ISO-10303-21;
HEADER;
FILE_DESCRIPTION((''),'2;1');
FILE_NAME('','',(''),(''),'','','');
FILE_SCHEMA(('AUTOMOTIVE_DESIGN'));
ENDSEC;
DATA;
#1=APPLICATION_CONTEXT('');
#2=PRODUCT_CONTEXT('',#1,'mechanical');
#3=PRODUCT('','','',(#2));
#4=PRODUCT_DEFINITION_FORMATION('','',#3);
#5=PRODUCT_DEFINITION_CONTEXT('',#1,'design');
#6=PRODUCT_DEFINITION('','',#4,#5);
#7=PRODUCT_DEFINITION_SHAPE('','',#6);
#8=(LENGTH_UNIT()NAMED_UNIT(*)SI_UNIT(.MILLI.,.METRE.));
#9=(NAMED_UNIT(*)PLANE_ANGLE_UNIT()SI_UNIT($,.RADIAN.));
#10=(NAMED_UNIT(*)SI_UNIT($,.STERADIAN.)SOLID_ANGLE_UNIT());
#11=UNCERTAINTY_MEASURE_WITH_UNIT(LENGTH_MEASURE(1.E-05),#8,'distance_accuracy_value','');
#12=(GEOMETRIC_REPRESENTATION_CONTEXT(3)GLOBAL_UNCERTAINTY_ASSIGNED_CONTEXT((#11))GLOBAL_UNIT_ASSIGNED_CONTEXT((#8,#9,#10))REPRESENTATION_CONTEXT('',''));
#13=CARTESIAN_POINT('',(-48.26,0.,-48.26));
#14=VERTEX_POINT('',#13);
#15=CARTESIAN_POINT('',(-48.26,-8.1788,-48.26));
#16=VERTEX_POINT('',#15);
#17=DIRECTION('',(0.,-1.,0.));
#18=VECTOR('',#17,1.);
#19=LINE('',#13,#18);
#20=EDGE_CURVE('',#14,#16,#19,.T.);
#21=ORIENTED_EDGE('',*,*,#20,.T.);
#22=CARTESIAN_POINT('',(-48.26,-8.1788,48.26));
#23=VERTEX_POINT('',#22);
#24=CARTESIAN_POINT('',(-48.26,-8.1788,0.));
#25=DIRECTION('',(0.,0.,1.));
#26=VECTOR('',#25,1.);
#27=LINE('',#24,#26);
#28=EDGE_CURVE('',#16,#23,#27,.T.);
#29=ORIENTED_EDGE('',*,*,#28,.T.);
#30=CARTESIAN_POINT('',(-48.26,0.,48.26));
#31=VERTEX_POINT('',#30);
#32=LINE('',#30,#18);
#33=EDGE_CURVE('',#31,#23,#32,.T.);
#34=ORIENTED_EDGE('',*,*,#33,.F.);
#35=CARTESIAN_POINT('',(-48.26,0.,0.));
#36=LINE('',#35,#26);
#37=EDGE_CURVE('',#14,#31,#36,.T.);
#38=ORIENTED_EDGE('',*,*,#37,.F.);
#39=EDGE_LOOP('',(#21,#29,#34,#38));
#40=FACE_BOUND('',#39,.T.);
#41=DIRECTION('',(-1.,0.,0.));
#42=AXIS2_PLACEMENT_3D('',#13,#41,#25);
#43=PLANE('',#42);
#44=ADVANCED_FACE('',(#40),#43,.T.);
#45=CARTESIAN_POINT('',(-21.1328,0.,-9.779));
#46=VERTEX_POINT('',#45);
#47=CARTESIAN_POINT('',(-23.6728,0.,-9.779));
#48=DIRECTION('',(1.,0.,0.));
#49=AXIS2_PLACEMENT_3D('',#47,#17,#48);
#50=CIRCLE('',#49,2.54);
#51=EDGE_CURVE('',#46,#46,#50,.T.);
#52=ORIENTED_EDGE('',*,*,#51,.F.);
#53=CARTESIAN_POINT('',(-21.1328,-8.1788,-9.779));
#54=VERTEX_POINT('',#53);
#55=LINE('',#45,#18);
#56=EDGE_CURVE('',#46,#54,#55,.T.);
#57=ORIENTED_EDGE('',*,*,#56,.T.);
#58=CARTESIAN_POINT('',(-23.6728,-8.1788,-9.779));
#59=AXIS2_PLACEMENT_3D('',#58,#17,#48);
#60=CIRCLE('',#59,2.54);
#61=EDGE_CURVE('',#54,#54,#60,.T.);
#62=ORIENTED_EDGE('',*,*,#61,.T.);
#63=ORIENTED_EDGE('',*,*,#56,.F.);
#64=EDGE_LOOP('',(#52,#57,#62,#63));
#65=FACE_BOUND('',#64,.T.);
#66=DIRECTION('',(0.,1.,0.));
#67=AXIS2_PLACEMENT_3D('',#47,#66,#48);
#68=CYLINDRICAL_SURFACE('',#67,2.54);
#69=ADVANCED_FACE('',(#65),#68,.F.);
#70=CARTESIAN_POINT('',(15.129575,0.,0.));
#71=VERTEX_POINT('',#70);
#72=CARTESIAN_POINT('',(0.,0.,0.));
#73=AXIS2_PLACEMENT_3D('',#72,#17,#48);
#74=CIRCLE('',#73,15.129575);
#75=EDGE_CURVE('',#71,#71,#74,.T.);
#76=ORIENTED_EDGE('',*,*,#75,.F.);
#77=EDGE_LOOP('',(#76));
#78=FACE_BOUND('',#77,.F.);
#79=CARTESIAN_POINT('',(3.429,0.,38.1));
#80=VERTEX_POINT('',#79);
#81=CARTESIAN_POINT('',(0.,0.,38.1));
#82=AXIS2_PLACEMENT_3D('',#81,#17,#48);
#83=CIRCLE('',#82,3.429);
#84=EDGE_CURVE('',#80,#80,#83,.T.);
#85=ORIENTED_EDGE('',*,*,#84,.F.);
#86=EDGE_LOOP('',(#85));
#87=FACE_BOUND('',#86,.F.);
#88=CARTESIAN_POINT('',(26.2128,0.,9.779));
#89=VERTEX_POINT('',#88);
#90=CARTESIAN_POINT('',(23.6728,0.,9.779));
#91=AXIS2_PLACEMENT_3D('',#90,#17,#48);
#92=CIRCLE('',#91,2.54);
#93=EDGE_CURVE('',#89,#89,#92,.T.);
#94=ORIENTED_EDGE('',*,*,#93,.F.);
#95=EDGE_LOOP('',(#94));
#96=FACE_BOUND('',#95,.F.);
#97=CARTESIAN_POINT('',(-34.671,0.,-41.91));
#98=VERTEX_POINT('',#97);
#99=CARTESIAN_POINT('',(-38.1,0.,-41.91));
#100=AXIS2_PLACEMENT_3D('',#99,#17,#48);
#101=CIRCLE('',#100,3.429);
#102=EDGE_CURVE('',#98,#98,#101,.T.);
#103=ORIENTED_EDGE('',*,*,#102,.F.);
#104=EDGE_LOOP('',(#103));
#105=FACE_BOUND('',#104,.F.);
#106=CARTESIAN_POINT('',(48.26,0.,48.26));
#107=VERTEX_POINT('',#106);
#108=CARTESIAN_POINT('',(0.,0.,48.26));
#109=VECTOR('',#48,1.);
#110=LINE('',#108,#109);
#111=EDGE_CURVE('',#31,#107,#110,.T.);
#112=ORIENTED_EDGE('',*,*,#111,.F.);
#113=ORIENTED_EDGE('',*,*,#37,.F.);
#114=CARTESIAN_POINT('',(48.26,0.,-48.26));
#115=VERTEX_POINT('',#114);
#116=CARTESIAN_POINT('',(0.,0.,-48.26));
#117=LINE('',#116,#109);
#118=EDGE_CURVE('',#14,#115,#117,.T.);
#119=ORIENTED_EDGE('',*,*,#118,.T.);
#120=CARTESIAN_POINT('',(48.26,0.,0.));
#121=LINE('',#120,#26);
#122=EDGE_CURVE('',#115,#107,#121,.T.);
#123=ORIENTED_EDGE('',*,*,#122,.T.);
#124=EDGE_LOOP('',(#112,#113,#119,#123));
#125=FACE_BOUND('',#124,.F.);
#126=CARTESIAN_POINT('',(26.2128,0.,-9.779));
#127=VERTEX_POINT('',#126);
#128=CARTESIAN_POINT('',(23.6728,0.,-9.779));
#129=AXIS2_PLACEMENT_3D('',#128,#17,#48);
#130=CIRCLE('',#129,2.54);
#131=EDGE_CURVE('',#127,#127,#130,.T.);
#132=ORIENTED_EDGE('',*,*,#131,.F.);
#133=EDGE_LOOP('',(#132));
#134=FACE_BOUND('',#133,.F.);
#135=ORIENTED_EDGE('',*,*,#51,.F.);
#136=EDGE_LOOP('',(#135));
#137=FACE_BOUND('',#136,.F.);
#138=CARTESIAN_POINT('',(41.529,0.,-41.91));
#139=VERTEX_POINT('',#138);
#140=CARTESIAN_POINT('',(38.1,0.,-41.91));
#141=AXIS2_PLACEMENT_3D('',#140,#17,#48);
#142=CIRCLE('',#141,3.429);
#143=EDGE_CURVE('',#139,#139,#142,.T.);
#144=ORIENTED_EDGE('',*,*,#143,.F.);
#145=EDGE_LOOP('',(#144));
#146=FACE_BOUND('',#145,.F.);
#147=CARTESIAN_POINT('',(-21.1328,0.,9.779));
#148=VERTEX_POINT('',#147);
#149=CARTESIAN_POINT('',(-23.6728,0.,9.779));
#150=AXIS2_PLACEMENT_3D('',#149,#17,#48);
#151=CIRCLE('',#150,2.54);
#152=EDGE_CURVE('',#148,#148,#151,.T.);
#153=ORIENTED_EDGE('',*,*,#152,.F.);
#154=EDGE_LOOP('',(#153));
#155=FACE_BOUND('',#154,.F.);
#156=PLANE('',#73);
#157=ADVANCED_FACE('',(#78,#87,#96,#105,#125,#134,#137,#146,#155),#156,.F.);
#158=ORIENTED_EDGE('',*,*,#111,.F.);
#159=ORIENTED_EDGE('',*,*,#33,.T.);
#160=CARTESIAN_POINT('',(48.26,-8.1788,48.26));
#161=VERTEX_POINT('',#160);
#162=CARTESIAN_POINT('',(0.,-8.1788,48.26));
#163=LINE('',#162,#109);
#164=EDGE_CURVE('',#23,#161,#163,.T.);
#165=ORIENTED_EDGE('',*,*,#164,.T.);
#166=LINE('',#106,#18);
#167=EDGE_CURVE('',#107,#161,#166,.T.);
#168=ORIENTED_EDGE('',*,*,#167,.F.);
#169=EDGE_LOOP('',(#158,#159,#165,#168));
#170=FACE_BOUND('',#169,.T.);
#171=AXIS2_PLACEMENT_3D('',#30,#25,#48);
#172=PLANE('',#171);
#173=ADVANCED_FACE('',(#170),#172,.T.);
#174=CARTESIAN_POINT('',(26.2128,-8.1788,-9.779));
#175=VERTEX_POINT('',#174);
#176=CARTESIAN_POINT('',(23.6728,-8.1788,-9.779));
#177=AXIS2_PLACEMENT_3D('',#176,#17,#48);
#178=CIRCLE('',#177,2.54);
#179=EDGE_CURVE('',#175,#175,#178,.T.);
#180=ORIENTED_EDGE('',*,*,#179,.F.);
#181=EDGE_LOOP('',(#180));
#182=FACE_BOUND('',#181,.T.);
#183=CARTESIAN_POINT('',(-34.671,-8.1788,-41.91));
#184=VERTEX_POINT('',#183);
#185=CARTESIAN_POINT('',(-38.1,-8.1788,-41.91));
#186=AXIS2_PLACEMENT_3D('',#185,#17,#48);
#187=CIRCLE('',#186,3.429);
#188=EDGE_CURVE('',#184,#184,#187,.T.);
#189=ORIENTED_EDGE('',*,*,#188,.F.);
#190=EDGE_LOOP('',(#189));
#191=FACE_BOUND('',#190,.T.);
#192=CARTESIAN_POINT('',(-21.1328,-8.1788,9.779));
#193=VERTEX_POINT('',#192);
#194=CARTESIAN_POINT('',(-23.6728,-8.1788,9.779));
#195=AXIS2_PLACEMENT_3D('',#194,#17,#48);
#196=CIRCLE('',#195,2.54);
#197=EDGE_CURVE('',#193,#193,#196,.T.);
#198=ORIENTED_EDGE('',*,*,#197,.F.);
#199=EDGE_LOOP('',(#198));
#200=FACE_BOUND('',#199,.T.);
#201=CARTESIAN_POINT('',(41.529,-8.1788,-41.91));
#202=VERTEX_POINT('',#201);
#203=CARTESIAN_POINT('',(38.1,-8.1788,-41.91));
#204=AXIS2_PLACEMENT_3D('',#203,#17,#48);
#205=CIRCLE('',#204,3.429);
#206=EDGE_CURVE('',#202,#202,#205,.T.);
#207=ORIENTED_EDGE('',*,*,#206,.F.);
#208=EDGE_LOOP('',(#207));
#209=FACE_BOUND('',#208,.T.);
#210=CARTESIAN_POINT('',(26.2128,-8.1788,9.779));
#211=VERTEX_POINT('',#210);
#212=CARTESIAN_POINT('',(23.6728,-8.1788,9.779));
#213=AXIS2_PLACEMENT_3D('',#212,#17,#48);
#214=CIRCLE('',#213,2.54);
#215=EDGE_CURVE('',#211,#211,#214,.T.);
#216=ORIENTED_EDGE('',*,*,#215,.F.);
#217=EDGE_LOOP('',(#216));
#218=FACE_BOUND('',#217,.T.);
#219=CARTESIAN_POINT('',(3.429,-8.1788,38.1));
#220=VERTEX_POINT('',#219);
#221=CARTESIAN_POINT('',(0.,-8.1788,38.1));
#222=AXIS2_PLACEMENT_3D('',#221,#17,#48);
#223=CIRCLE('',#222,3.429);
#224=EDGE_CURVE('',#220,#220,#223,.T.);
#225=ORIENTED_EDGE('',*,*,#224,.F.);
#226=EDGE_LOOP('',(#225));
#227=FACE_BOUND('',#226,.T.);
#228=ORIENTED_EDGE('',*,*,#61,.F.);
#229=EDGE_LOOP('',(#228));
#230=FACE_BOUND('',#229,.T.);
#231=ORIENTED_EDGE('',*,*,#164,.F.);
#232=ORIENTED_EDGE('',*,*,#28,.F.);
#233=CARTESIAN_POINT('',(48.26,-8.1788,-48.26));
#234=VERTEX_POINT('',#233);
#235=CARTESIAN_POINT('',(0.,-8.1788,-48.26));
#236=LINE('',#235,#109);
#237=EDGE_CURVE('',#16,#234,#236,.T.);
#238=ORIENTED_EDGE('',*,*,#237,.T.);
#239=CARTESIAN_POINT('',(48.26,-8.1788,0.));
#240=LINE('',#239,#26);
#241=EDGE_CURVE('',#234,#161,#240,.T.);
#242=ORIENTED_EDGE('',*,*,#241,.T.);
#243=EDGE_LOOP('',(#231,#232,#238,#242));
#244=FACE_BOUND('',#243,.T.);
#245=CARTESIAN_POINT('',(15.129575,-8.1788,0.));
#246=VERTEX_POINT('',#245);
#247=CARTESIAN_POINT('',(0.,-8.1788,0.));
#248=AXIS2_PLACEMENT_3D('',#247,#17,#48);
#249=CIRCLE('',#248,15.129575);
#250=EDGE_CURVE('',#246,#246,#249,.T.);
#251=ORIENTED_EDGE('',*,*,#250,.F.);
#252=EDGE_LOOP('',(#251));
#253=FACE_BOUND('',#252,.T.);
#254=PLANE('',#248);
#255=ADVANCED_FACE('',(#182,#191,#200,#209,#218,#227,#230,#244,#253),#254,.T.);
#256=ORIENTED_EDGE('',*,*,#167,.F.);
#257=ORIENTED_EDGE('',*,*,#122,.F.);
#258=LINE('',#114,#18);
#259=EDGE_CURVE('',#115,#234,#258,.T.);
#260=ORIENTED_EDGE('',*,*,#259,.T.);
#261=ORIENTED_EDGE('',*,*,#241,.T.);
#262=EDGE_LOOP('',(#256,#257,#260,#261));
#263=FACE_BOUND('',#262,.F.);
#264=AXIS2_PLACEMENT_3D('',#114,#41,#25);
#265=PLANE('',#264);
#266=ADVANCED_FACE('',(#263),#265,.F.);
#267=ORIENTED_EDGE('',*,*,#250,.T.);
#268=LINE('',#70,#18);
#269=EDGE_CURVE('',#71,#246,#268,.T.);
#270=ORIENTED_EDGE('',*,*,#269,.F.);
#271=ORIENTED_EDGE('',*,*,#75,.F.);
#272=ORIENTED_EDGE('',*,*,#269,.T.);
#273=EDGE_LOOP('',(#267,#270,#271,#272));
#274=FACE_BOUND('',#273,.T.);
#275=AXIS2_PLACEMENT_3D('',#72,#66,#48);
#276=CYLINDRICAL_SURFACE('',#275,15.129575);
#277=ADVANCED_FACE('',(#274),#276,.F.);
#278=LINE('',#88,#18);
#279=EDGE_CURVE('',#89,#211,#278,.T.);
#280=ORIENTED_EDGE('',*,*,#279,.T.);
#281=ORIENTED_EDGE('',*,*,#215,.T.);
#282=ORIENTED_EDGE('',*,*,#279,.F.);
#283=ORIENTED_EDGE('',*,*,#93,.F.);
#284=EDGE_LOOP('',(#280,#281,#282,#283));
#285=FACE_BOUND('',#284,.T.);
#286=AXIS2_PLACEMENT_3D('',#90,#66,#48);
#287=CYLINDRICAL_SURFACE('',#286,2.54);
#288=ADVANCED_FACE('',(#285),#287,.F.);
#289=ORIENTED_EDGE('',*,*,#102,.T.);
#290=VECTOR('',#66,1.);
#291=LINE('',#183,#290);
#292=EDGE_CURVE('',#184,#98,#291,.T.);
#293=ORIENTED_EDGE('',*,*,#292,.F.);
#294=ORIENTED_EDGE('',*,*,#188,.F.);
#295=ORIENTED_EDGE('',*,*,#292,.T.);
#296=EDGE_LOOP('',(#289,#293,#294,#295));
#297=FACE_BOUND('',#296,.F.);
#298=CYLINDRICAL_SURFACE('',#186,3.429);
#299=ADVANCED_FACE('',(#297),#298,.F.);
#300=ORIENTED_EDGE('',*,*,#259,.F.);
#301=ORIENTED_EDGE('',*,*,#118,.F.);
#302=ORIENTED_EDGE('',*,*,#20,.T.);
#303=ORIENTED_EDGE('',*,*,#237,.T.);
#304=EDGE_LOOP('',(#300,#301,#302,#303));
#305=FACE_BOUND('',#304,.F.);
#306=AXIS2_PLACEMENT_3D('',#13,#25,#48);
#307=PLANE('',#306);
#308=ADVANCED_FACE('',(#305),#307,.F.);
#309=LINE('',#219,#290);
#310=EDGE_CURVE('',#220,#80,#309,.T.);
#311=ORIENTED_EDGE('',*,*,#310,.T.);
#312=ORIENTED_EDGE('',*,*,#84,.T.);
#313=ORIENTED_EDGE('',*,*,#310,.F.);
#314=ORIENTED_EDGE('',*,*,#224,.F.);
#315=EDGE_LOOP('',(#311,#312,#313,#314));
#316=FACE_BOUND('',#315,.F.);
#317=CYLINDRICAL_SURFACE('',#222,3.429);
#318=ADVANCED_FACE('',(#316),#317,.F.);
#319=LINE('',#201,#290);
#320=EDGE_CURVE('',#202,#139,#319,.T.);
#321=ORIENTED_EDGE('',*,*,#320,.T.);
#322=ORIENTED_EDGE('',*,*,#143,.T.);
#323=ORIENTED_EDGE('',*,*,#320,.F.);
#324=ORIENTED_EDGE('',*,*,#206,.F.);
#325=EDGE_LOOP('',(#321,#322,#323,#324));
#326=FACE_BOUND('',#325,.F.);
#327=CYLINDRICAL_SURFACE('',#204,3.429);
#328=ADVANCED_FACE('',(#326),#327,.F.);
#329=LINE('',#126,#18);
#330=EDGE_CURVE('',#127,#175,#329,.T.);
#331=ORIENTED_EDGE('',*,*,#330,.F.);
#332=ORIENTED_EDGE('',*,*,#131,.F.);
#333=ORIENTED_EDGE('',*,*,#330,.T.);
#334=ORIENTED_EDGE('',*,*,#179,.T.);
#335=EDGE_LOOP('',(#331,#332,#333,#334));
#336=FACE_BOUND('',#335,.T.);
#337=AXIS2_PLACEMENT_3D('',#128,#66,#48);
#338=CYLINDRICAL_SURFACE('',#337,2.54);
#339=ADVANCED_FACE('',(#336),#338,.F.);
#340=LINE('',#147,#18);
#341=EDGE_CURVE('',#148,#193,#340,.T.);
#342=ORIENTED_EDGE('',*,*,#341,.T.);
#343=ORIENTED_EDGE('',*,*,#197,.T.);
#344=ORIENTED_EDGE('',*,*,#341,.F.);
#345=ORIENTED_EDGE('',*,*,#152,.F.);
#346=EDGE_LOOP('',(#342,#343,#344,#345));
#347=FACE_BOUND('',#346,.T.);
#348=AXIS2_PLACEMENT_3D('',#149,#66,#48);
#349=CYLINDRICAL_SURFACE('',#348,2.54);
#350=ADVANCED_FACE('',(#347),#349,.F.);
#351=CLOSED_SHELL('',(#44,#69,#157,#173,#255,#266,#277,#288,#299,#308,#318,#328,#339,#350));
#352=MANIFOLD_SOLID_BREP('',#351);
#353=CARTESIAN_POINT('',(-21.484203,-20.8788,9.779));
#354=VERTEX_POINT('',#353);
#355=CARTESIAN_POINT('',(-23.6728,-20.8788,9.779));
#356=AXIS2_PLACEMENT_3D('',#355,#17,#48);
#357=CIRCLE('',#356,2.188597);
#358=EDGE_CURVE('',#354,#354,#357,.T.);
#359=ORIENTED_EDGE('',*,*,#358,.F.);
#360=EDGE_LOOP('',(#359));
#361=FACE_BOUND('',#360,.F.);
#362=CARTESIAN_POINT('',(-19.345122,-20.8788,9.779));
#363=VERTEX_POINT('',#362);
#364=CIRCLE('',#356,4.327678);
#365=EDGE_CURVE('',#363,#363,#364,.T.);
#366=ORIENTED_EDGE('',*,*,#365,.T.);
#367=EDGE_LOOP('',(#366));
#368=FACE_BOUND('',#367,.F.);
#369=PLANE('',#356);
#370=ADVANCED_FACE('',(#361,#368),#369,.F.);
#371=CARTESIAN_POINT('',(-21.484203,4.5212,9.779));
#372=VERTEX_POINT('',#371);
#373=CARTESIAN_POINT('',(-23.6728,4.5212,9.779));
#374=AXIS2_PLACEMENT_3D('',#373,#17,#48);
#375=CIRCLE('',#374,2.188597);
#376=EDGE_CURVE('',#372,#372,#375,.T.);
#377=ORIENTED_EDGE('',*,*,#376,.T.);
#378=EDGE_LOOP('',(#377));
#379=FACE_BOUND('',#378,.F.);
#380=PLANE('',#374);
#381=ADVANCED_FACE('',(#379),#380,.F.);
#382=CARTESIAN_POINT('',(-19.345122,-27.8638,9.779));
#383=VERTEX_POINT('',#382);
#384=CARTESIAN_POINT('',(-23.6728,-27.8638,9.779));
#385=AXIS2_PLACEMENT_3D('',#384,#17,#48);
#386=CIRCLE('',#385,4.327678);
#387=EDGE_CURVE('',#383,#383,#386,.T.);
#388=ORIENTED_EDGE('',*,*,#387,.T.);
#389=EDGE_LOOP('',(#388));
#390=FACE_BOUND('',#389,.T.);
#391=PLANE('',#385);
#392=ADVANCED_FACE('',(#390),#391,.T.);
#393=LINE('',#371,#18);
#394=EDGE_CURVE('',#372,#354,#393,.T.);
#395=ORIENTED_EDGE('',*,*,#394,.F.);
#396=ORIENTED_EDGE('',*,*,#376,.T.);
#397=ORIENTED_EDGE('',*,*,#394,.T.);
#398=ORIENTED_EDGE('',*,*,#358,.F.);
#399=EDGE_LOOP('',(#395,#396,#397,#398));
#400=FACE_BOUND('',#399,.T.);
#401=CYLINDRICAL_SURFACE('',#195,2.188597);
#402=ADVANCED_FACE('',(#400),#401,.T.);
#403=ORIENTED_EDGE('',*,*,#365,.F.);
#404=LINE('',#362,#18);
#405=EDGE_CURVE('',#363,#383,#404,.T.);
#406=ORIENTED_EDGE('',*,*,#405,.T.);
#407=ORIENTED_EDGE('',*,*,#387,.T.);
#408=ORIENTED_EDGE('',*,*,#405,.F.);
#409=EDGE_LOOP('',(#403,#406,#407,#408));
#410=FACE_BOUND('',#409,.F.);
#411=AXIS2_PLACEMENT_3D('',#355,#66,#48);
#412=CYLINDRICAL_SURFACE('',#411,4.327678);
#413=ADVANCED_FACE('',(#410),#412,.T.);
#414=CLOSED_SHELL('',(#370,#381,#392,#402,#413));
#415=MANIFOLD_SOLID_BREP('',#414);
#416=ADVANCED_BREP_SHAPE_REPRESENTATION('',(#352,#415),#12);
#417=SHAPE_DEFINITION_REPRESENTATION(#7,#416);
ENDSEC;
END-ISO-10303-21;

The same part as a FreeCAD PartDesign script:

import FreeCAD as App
import Part
import Sketcher
Q = App.Units.Quantity


def add_polygon(sketch, points):
    """Adds a closed chain of lines whose ends are joined by coincident constraints."""
    first, n = sketch.GeometryCount, len(points)
    for a, b in zip(points, points[1:] + points[:1]):
        sketch.addGeometry(Part.LineSegment(App.Vector(*a, 0), App.Vector(*b, 0)), False)
    for i in range(n):
        sketch.addConstraint(Sketcher.Constraint("Coincident", first + i, 2, first + (i + 1) % n, 1))

doc = App.newDocument("Part")
body = doc.addObject("PartDesign::Body", "Body")

sketch1 = body.newObject("Sketcher::SketchObject", "Sketch")
sketch1.AttachmentSupport = (doc.getObject("XZ_Plane"), [""])
sketch1.MapMode = "FlatFace"
add_polygon(sketch1, [(-48.26, 48.26), (-48.26, -48.26), (48.26, -48.26), (48.26, 48.26)])
sketch1.addGeometry(Part.Circle(App.Vector(-23.6728, -9.779, 0), App.Vector(0, 0, 1), 2.54), False)
sketch1.addGeometry(Part.Circle(App.Vector(23.6728, -9.779, 0), App.Vector(0, 0, 1), 2.54), False)
sketch1.addGeometry(Part.Circle(App.Vector(0, 0, 0), App.Vector(0, 0, 1), 15.129575), False)
sketch1.addGeometry(Part.Circle(App.Vector(-23.6728, 9.779, 0), App.Vector(0, 0, 1), 2.54), False)
sketch1.addGeometry(Part.Circle(App.Vector(23.6728, 9.779, 0), App.Vector(0, 0, 1), 2.54), False)
sketch1.addConstraint(Sketcher.Constraint("Vertical", 0))
sketch1.addConstraint(Sketcher.Constraint("Horizontal", 1))
sketch1.addConstraint(Sketcher.Constraint("Vertical", 2))
sketch1.addConstraint(Sketcher.Constraint("Horizontal", 3))
sketch1.addConstraint(Sketcher.Constraint("Coincident", 6, 3, -1, 1))
sketch1.addConstraint(Sketcher.Constraint("Equal", 4, 5))
sketch1.addConstraint(Sketcher.Constraint("Equal", 5, 7))
sketch1.addConstraint(Sketcher.Constraint("Equal", 7, 8))
sketch1.addConstraint(Sketcher.Constraint("Symmetric", 5, 3, 7, 3, -1, 1))
sketch1.addConstraint(Sketcher.Constraint("Symmetric", 4, 3, 8, 3, -1, 1))
sketch1.addConstraint(Sketcher.Constraint("Symmetric", 0, 2, 2, 2, -1, 1))
sketch1.addConstraint(Sketcher.Constraint("Symmetric", 4, 3, 5, 3, -2))
sketch1.addConstraint(Sketcher.Constraint("Equal", 3, 0))
sketch1.addConstraint(Sketcher.Constraint("Diameter", 4, Q("0.2 in")))
sketch1.addConstraint(Sketcher.Constraint("DistanceX", 1, 1, 1, 2, Q("3.8 in")))
sketch1.addConstraint(Sketcher.Constraint("DistanceY", 4, 3, 7, 3, Q("0.77 in")))
sketch1.addConstraint(Sketcher.Constraint("Diameter", 6, 30.25915))
sketch1.addConstraint(Sketcher.Constraint("DistanceX", 4, 3, -1, 1, Q("0.932 in")))
pad1 = body.newObject("PartDesign::Pad", "Pad")
pad1.Profile = sketch1
pad1.Length = Q("0.322 in")

sketch2 = body.newObject("Sketcher::SketchObject", "Sketch001")
sketch2.AttachmentSupport = (doc.getObject("XZ_Plane"), [""])
sketch2.MapMode = "FlatFace"
sketch2.AttachmentOffset = App.Placement(App.Vector(0, 0, 0.322 * 25.4), App.Rotation())
sketch2.addGeometry(Part.Circle(App.Vector(0, 38.1, 0), App.Vector(0, 0, 1), 3.429), False)
sketch2.addGeometry(Part.Circle(App.Vector(38.1, -41.91, 0), App.Vector(0, 0, 1), 3.429), False)
sketch2.addGeometry(Part.Circle(App.Vector(-38.1, -41.91, 0), App.Vector(0, 0, 1), 3.429), False)
sketch2.addConstraint(Sketcher.Constraint("Equal", 0, 1))
sketch2.addConstraint(Sketcher.Constraint("Equal", 1, 2))
sketch2.addConstraint(Sketcher.Constraint("Symmetric", 1, 3, 2, 3, -2))
sketch2.addConstraint(Sketcher.Constraint("PointOnObject", 0, 3, -2))
sketch2.addConstraint(Sketcher.Constraint("Diameter", 0, Q("0.27 in")))
sketch2.addConstraint(Sketcher.Constraint("DistanceX", 2, 3, 1, 3, Q("3 in")))
sketch2.addConstraint(Sketcher.Constraint("DistanceY", -1, 1, 0, 3, Q("1.5 in")))
sketch2.addConstraint(Sketcher.Constraint("DistanceY", 1, 3, -1, 1, Q("1.65 in")))
pocket1 = body.newObject("PartDesign::Pocket", "Pocket")
pocket1.Profile = sketch2
pocket1.Type = "ThroughAll"
body2 = doc.addObject("PartDesign::Body", "Body001")

sketch3 = body2.newObject("Sketcher::SketchObject", "Sketch002")
sketch3.AttachmentSupport = (doc.getObject("XZ_Plane001"), [""])
sketch3.MapMode = "FlatFace"
sketch3.AttachmentOffset = App.Placement(App.Vector(0, 0, 0.322 * 25.4), App.Rotation())
sketch3.addGeometry(Part.Circle(App.Vector(-23.6728, 9.779, 0), App.Vector(0, 0, 1), 2.188597), False)
sketch3.addConstraint(Sketcher.Constraint("DistanceX", 0, 3, -1, 1, Q("0.932 in")))
sketch3.addConstraint(Sketcher.Constraint("DistanceY", -1, 1, 0, 3, Q("0.385 in")))
sketch3.addConstraint(Sketcher.Constraint("Diameter", 0, 4.377194))
pad2 = body2.newObject("PartDesign::Pad", "Pad001")
pad2.Profile = sketch3
pad2.Length = Q("1 in")
pad2.Midplane = True

sketch4 = body2.newObject("Sketcher::SketchObject", "Sketch003")
sketch4.AttachmentSupport = (doc.getObject("XZ_Plane001"), [""])
sketch4.MapMode = "FlatFace"
sketch4.AttachmentOffset = App.Placement(App.Vector(0, 0, 0.822 * 25.4), App.Rotation())
sketch4.addGeometry(Part.Circle(App.Vector(-23.6728, 9.779, 0), App.Vector(0, 0, 1), 4.327678), False)
sketch4.addConstraint(Sketcher.Constraint("DistanceX", 0, 3, -1, 1, Q("0.932 in")))
sketch4.addConstraint(Sketcher.Constraint("DistanceY", -1, 1, 0, 3, Q("0.385 in")))
sketch4.addConstraint(Sketcher.Constraint("Diameter", 0, 8.655356))
pad3 = body2.newObject("PartDesign::Pad", "Pad002")
pad3.Profile = sketch4
pad3.Length = Q("0.275 in")

doc.recompute()
